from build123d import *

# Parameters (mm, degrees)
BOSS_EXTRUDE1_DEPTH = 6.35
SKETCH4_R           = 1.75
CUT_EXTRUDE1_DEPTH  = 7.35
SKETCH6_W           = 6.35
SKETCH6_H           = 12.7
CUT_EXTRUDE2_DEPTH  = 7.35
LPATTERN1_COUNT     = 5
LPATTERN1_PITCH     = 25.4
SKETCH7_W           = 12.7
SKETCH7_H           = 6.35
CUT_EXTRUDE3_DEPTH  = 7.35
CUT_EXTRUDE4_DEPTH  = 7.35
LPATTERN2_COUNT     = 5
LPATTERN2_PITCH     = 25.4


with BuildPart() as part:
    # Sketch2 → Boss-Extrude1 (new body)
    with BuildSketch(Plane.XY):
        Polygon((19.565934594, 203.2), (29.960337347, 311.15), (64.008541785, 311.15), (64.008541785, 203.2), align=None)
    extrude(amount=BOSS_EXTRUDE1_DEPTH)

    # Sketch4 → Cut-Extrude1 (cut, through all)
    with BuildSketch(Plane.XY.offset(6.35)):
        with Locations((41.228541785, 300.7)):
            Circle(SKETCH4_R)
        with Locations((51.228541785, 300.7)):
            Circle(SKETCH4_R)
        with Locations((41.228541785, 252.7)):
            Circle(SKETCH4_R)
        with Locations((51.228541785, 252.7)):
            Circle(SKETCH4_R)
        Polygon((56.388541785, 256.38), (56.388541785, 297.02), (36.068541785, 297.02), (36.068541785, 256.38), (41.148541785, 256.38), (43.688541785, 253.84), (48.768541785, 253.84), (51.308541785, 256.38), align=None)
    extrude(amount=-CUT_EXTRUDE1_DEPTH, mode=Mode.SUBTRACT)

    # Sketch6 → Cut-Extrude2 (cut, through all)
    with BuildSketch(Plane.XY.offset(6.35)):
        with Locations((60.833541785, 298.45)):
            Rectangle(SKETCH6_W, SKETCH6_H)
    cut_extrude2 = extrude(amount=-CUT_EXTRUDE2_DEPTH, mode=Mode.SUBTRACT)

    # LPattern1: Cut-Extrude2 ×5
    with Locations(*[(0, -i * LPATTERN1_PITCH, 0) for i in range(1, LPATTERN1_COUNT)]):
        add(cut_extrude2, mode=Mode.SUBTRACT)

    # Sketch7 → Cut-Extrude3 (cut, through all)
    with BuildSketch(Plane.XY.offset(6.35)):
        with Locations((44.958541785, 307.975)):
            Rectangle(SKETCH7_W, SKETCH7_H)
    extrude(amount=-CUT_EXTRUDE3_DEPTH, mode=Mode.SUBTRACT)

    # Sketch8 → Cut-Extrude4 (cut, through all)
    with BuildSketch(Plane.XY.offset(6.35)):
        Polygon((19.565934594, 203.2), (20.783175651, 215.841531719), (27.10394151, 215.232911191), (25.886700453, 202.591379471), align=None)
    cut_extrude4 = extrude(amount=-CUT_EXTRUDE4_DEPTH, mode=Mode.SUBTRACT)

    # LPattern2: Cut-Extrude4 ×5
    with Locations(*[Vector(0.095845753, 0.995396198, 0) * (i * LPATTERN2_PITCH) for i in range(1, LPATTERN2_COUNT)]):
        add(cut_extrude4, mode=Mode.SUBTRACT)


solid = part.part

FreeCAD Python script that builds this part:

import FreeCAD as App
import Part
import Sketcher

V = App.Vector
Q = App.Units.Quantity

doc = App.newDocument("Part")
params = doc.addObject("Spreadsheet::Sheet", "Params")
for row, (alias, value) in enumerate([
    ("sketch1_height", "4.25 in"),
    ("pad1_length", "0.25 in"),
    ("sketch2_width", "0.8 in"),
    ("sketch2_width2", "0.2 in"),
    ("sketch2_height", "1.6 in"),
    ("sketch3_height", "0.5 in"),
    ("sketch3_width", "0.25 in"),
    ("linearpattern_pitch", "1 in"),
    ("sketch4_width", "0.5 in"),
    ("sketch4_height", "0.25 in"),
    ("sketch5_length", "0.5 in"),
    ("sketch5_length2", "0.25 in"),
    ("linearpattern2_pitch", "1 in"),
], start=1):
    params.set(f"A{row}", alias)
    params.set(f"B{row}", "=" + value)
    params.setAlias(f"B{row}", alias)

body = doc.addObject("PartDesign::Body", "Body")

sketch1 = doc.addObject("Sketcher::SketchObject", "Sketch")
body.addObject(sketch1)
sketch1.AttachmentSupport = (doc.XY_Plane, [""])
sketch1.MapMode = "FlatFace"
sketch1.addGeometry(Part.LineSegment(V(29.960337, 311.15, 0), V(19.565935, 203.2, 0)), False)
sketch1.addGeometry(Part.LineSegment(V(19.565935, 203.2, 0), V(64.008542, 203.2, 0)), False)
sketch1.addGeometry(Part.LineSegment(V(64.008542, 203.2, 0), V(64.008542, 311.15, 0)), False)
sketch1.addGeometry(Part.LineSegment(V(64.008542, 311.15, 0), V(29.960337, 311.15, 0)), False)
sketch1.addConstraint(Sketcher.Constraint("Coincident", 0, 2, 1, 1))
sketch1.addConstraint(Sketcher.Constraint("Coincident", 1, 2, 2, 1))
sketch1.addConstraint(Sketcher.Constraint("Coincident", 2, 2, 3, 1))
sketch1.addConstraint(Sketcher.Constraint("Coincident", 3, 2, 0, 1))
sketch1.addConstraint(Sketcher.Constraint("Horizontal", 1))
sketch1.addConstraint(Sketcher.Constraint("Vertical", 2))
sketch1.addConstraint(Sketcher.Constraint("Horizontal", 3))
sketch1.addConstraint(Sketcher.Constraint("DistanceY", -1, 1, 0, 2, Q("8 in")))
sketch1.addConstraint(Sketcher.Constraint("DistanceY", 2, 1, 2, 2, Q("4.25 in")))
sketch1.addConstraint(Sketcher.Constraint("Angle", 0, Q("-95.5 deg")))
sketch1.addConstraint(Sketcher.Constraint("DistanceX", 1, 1, 1, 2, 44.442607))
sketch1.addConstraint(Sketcher.Constraint("DistanceX", -1, 1, 1, 2, 64.008542))
sketch1.setExpression("Constraints[8]", "Params.sketch1_height")
pad1 = doc.addObject("PartDesign::Pad", "Pad")
body.addObject(pad1)
pad1.Profile = sketch1
pad1.setExpression("Length", "Params.pad1_length")

sketch2 = doc.addObject("Sketcher::SketchObject", "Sketch001")
body.addObject(sketch2)
sketch2.AttachmentSupport = (doc.XY_Plane, [""])
sketch2.MapMode = "FlatFace"
sketch2.AttachmentOffset = App.Placement(V(0, 0, 0.25 * 25.4), App.Rotation())
sketch2.addGeometry(Part.Circle(V(41.228542, 300.7, 0), V(0, 0, 1), 1.75), False)
sketch2.addGeometry(Part.Circle(V(51.228542, 300.7, 0), V(0, 0, 1), 1.75), False)
sketch2.addGeometry(Part.Circle(V(41.228542, 252.7, 0), V(0, 0, 1), 1.75), False)
sketch2.addGeometry(Part.Circle(V(51.228542, 252.7, 0), V(0, 0, 1), 1.75), False)
sketch2.addGeometry(Part.LineSegment(V(56.388542, 256.38, 0), V(56.388542, 297.02, 0)), False)
sketch2.addGeometry(Part.LineSegment(V(56.388542, 297.02, 0), V(36.068542, 297.02, 0)), False)
sketch2.addGeometry(Part.LineSegment(V(36.068542, 297.02, 0), V(36.068542, 256.38, 0)), False)
sketch2.addGeometry(Part.LineSegment(V(36.068542, 256.38, 0), V(41.148542, 256.38, 0)), False)
sketch2.addGeometry(Part.LineSegment(V(41.148542, 256.38, 0), V(43.688542, 253.84, 0)), False)
sketch2.addGeometry(Part.LineSegment(V(43.688542, 253.84, 0), V(48.768542, 253.84, 0)), False)
sketch2.addGeometry(Part.LineSegment(V(48.768542, 253.84, 0), V(51.308542, 256.38, 0)), False)
sketch2.addGeometry(Part.LineSegment(V(51.308542, 256.38, 0), V(56.388542, 256.38, 0)), False)
sketch2.addConstraint(Sketcher.Constraint("Coincident", 4, 2, 5, 1))
sketch2.addConstraint(Sketcher.Constraint("Coincident", 5, 2, 6, 1))
sketch2.addConstraint(Sketcher.Constraint("Coincident", 6, 2, 7, 1))
sketch2.addConstraint(Sketcher.Constraint("Coincident", 7, 2, 8, 1))
sketch2.addConstraint(Sketcher.Constraint("Coincident", 8, 2, 9, 1))
sketch2.addConstraint(Sketcher.Constraint("Coincident", 9, 2, 10, 1))
sketch2.addConstraint(Sketcher.Constraint("Coincident", 10, 2, 11, 1))
sketch2.addConstraint(Sketcher.Constraint("Coincident", 11, 2, 4, 1))
sketch2.addConstraint(Sketcher.Constraint("Vertical", 4))
sketch2.addConstraint(Sketcher.Constraint("Horizontal", 5))
sketch2.addConstraint(Sketcher.Constraint("Vertical", 6))
sketch2.addConstraint(Sketcher.Constraint("Horizontal", 7))
sketch2.addConstraint(Sketcher.Constraint("Horizontal", 9))
sketch2.addConstraint(Sketcher.Constraint("Horizontal", 11))
sketch2.addConstraint(Sketcher.Constraint("Equal", 0, 1))
sketch2.addConstraint(Sketcher.Constraint("Equal", 1, 2))
sketch2.addConstraint(Sketcher.Constraint("Equal", 2, 3))
sketch2.addConstraint(Sketcher.Constraint("Perpendicular", 8, 10))
sketch2.addConstraint(Sketcher.Constraint("Horizontal", 0, 3, 1, 3))
sketch2.addConstraint(Sketcher.Constraint("Horizontal", 2, 3, 3, 3))
sketch2.addConstraint(Sketcher.Constraint("Horizontal", 7, 2, 10, 2))
sketch2.addConstraint(Sketcher.Constraint("Vertical", 0, 3, 2, 3))
sketch2.addConstraint(Sketcher.Constraint("Vertical", 1, 3, 3, 3))
sketch2.addConstraint(Sketcher.Constraint("Equal", 7, 9))
sketch2.addConstraint(Sketcher.Constraint("Equal", 9, 11))
sketch2.addConstraint(Sketcher.Constraint("Equal", 8, 10))
sketch2.addConstraint(Sketcher.Constraint("DistanceX", 5, 2, 5, 1, Q("0.8 in")))
sketch2.addConstraint(Sketcher.Constraint("DistanceX", 7, 1, 7, 2, Q("0.2 in")))
sketch2.addConstraint(Sketcher.Constraint("DistanceY", 4, 1, 4, 2, Q("1.6 in")))
sketch2.addConstraint(Sketcher.Constraint("Diameter", 0, 3.5))
sketch2.addConstraint(Sketcher.Constraint("DistanceY", -1, 1, 0, 3, 300.7))
sketch2.addConstraint(Sketcher.Constraint("DistanceY", -1, 1, 2, 3, 252.7))
sketch2.addConstraint(Sketcher.Constraint("DistanceY", -1, 1, 4, 2, 297.02))
sketch2.addConstraint(Sketcher.Constraint("DistanceX", 0, 3, 1, 3, 10.0))
sketch2.addConstraint(Sketcher.Constraint("DistanceX", 1, 3, 4, 2, 5.16))
sketch2.addConstraint(Sketcher.Constraint("DistanceX", -1, 1, 0, 3, 41.228542))
sketch2.setExpression("Constraints[26]", "Params.sketch2_width")
sketch2.setExpression("Constraints[27]", "Params.sketch2_width2")
sketch2.setExpression("Constraints[28]", "Params.sketch2_height")
pocket1 = doc.addObject("PartDesign::Pocket", "Pocket")
body.addObject(pocket1)
pocket1.Profile = sketch2
pocket1.Type = "ThroughAll"

sketch3 = doc.addObject("Sketcher::SketchObject", "Sketch002")
body.addObject(sketch3)
sketch3.AttachmentSupport = (doc.XY_Plane, [""])
sketch3.MapMode = "FlatFace"
sketch3.AttachmentOffset = App.Placement(V(0, 0, 0.25 * 25.4), App.Rotation())
sketch3.addGeometry(Part.LineSegment(V(57.658542, 304.8, 0), V(57.658542, 292.1, 0)), False)
sketch3.addGeometry(Part.LineSegment(V(57.658542, 292.1, 0), V(64.008542, 292.1, 0)), False)
sketch3.addGeometry(Part.LineSegment(V(64.008542, 292.1, 0), V(64.008542, 304.8, 0)), False)
sketch3.addGeometry(Part.LineSegment(V(64.008542, 304.8, 0), V(57.658542, 304.8, 0)), False)
sketch3.addConstraint(Sketcher.Constraint("Coincident", 0, 2, 1, 1))
sketch3.addConstraint(Sketcher.Constraint("Coincident", 1, 2, 2, 1))
sketch3.addConstraint(Sketcher.Constraint("Coincident", 2, 2, 3, 1))
sketch3.addConstraint(Sketcher.Constraint("Coincident", 3, 2, 0, 1))
sketch3.addConstraint(Sketcher.Constraint("Vertical", 0))
sketch3.addConstraint(Sketcher.Constraint("Horizontal", 1))
sketch3.addConstraint(Sketcher.Constraint("Vertical", 2))
sketch3.addConstraint(Sketcher.Constraint("Horizontal", 3))
sketch3.addConstraint(Sketcher.Constraint("DistanceY", 0, 2, 0, 1, Q("0.5 in")))
sketch3.addConstraint(Sketcher.Constraint("DistanceY", -1, 1, 2, 2, Q("12 in")))
sketch3.addConstraint(Sketcher.Constraint("DistanceX", 1, 1, 1, 2, Q("0.25 in")))
sketch3.addConstraint(Sketcher.Constraint("DistanceX", -1, 1, 0, 2, 57.658542))
sketch3.setExpression("Constraints[8]", "Params.sketch3_height")
sketch3.setExpression("Constraints[10]", "Params.sketch3_width")
pocket2 = doc.addObject("PartDesign::Pocket", "Pocket001")
body.addObject(pocket2)
pocket2.Profile = sketch3
pocket2.Type = "ThroughAll"
doc.recompute()

linearpattern = doc.addObject("PartDesign::LinearPattern", "LinearPattern")
body.addObject(linearpattern)
linearpattern.Originals = [pocket2]
linearpattern.Direction = (doc.Y_Axis, [""])
linearpattern.Mode = "offset"
linearpattern.setExpression("Offset", "Params.linearpattern_pitch")
linearpattern.Occurrences = 5
linearpattern.Reversed = True
body.Tip = linearpattern

sketch4 = doc.addObject("Sketcher::SketchObject", "Sketch003")
body.addObject(sketch4)
sketch4.AttachmentSupport = (doc.XY_Plane, [""])
sketch4.MapMode = "FlatFace"
sketch4.AttachmentOffset = App.Placement(V(0, 0, 0.25 * 25.4), App.Rotation())
sketch4.addGeometry(Part.LineSegment(V(38.608542, 311.15, 0), V(38.608542, 304.8, 0)), False)
sketch4.addGeometry(Part.LineSegment(V(38.608542, 304.8, 0), V(51.308542, 304.8, 0)), False)
sketch4.addGeometry(Part.LineSegment(V(51.308542, 304.8, 0), V(51.308542, 311.15, 0)), False)
sketch4.addGeometry(Part.LineSegment(V(51.308542, 311.15, 0), V(38.608542, 311.15, 0)), False)
sketch4.addConstraint(Sketcher.Constraint("Coincident", 0, 2, 1, 1))
sketch4.addConstraint(Sketcher.Constraint("Coincident", 1, 2, 2, 1))
sketch4.addConstraint(Sketcher.Constraint("Coincident", 2, 2, 3, 1))
sketch4.addConstraint(Sketcher.Constraint("Coincident", 3, 2, 0, 1))
sketch4.addConstraint(Sketcher.Constraint("Vertical", 0))
sketch4.addConstraint(Sketcher.Constraint("Horizontal", 1))
sketch4.addConstraint(Sketcher.Constraint("Vertical", 2))
sketch4.addConstraint(Sketcher.Constraint("Horizontal", 3))
sketch4.addConstraint(Sketcher.Constraint("DistanceX", 1, 1, 1, 2, Q("0.5 in")))
sketch4.addConstraint(Sketcher.Constraint("DistanceY", -1, 1, 0, 2, Q("12 in")))
sketch4.addConstraint(Sketcher.Constraint("DistanceY", 0, 2, 0, 1, Q("0.25 in")))
sketch4.addConstraint(Sketcher.Constraint("DistanceX", -1, 1, 0, 2, 38.608542))
sketch4.setExpression("Constraints[8]", "Params.sketch4_width")
sketch4.setExpression("Constraints[10]", "Params.sketch4_height")
pocket3 = doc.addObject("PartDesign::Pocket", "Pocket002")
body.addObject(pocket3)
pocket3.Profile = sketch4
pocket3.Type = "ThroughAll"

sketch5 = doc.addObject("Sketcher::SketchObject", "Sketch004")
body.addObject(sketch5)
sketch5.AttachmentSupport = (doc.XY_Plane, [""])
sketch5.MapMode = "FlatFace"
sketch5.AttachmentOffset = App.Placement(V(0, 0, 0.25 * 25.4), App.Rotation())
sketch5.addGeometry(Part.LineSegment(V(20.783176, 215.841532, 0), V(19.565935, 203.2, 0)), False)
sketch5.addGeometry(Part.LineSegment(V(19.565935, 203.2, 0), V(25.8867, 202.591379, 0)), False)
sketch5.addGeometry(Part.LineSegment(V(25.8867, 202.591379, 0), V(27.103942, 215.232911, 0)), False)
sketch5.addGeometry(Part.LineSegment(V(27.103942, 215.232911, 0), V(20.783176, 215.841532, 0)), False)
sketch5.addConstraint(Sketcher.Constraint("Coincident", 0, 2, 1, 1))
sketch5.addConstraint(Sketcher.Constraint("Coincident", 1, 2, 2, 1))
sketch5.addConstraint(Sketcher.Constraint("Coincident", 2, 2, 3, 1))
sketch5.addConstraint(Sketcher.Constraint("Coincident", 3, 2, 0, 1))
sketch5.addConstraint(Sketcher.Constraint("Perpendicular", 0, 1))
sketch5.addConstraint(Sketcher.Constraint("Perpendicular", 1, 2))
sketch5.addConstraint(Sketcher.Constraint("Perpendicular", 2, 3))
sketch5.addConstraint(Sketcher.Constraint("DistanceY", -1, 1, 0, 2, Q("8 in")))
sketch5.addConstraint(Sketcher.Constraint("Distance", 0, Q("0.5 in")))
sketch5.addConstraint(Sketcher.Constraint("Angle", 0, Q("-95.5 deg")))
sketch5.addConstraint(Sketcher.Constraint("Distance", 1, Q("0.25 in")))
sketch5.addConstraint(Sketcher.Constraint("DistanceX", -1, 1, 1, 2, 25.8867))
sketch5.setExpression("Constraints[8]", "Params.sketch5_length")
sketch5.setExpression("Constraints[10]", "Params.sketch5_length2")
pocket4 = doc.addObject("PartDesign::Pocket", "Pocket003")
body.addObject(pocket4)
pocket4.Profile = sketch5
pocket4.Type = "ThroughAll"
doc.recompute()

datumline = doc.addObject("PartDesign::Line", "DatumLine")
body.addObject(datumline)
datumline.Placement = App.Placement(V(0, 0, 0), App.Rotation(V(0, 0, 1), V(0.095845753, 0.995396198, 0)))
linearpattern2 = doc.addObject("PartDesign::LinearPattern", "LinearPattern001")
body.addObject(linearpattern2)
linearpattern2.Originals = [pocket4]
linearpattern2.Direction = (datumline, [""])
linearpattern2.Mode = "offset"
linearpattern2.setExpression("Offset", "Params.linearpattern2_pitch")
linearpattern2.Occurrences = 5
body.Tip = linearpattern2

doc.recompute()
